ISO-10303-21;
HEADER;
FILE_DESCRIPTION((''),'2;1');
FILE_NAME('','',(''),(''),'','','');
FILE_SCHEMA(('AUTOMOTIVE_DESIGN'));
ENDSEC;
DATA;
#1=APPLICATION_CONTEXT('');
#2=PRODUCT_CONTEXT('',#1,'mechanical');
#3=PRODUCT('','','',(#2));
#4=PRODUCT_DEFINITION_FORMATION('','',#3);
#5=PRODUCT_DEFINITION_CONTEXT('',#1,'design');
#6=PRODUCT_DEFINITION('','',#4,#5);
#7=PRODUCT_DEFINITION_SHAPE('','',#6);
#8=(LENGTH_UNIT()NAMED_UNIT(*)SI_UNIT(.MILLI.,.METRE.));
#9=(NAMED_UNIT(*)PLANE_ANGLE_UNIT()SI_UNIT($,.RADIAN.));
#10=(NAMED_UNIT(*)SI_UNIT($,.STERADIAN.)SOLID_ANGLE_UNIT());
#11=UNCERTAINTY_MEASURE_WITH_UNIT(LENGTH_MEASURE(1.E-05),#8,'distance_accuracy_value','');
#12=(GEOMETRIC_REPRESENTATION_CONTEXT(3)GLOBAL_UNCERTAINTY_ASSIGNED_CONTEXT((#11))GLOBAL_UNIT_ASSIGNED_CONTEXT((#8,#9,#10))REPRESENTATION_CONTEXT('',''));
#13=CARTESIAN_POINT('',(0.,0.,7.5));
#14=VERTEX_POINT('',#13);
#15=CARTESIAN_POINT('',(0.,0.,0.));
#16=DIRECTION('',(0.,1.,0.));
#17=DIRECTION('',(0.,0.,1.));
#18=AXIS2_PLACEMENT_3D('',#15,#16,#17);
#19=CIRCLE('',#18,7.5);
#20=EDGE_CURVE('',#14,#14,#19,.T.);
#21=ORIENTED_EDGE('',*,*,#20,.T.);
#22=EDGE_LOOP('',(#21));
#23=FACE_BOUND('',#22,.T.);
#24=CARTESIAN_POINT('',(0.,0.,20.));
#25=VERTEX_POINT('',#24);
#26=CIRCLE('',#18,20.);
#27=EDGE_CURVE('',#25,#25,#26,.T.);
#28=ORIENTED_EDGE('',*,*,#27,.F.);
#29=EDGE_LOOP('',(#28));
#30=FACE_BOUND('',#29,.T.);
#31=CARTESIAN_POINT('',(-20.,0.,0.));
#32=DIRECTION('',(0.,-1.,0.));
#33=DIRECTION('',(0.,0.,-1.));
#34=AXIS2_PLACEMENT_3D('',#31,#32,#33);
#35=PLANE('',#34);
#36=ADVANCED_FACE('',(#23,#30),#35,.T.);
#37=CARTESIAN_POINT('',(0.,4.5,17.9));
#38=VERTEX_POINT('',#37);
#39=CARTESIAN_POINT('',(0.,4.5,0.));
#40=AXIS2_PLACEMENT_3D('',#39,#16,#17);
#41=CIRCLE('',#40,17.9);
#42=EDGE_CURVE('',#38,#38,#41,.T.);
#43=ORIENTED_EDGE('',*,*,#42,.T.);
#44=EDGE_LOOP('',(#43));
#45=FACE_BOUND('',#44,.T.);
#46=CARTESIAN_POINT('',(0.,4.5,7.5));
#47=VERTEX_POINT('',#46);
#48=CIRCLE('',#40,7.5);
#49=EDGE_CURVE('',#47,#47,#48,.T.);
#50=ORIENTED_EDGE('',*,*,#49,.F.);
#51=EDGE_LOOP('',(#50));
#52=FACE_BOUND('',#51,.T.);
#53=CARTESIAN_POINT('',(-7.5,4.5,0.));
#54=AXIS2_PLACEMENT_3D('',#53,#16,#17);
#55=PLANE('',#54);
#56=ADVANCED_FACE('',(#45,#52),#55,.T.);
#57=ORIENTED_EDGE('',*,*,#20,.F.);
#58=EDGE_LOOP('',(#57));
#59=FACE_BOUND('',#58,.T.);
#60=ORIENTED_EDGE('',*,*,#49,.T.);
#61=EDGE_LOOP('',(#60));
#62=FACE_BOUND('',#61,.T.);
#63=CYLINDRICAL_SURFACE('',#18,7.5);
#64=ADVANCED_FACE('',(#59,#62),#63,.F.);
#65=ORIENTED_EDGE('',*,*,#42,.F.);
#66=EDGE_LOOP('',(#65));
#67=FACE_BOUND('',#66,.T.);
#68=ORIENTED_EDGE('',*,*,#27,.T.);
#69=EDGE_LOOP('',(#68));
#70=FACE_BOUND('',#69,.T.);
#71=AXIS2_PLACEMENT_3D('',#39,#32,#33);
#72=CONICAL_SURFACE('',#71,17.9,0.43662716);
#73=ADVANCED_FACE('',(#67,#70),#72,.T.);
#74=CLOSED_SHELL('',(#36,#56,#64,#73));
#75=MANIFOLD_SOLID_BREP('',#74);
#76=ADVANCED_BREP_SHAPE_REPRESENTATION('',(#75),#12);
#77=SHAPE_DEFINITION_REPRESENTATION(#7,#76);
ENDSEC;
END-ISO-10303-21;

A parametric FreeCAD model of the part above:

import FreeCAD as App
import Part
import Sketcher

doc = App.newDocument("Part")
body = doc.addObject("PartDesign::Body", "Body")

# Sketch on XY plane
sketch1 = body.newObject("Sketcher::SketchObject", "Sketch")
sketch1.AttachmentSupport = (doc.getObject("XY_Plane"), [""])
sketch1.MapMode = "FlatFace"
sketch1.addGeometry([
    Part.LineSegment(App.Vector(-7.5, 0, 0), App.Vector(-7.5, 4.5, 0)),
    Part.LineSegment(App.Vector(-7.5, 4.5, 0), App.Vector(-17.9, 4.5, 0)),
    Part.LineSegment(App.Vector(-17.9, 4.5, 0), App.Vector(-20, 0, 0)),
    Part.LineSegment(App.Vector(-20, 0, 0), App.Vector(-7.5, 0, 0)),
], False)
sketch1.addConstraint([
    Sketcher.Constraint("Coincident", 0, 2, 1, 1),
    Sketcher.Constraint("Coincident", 1, 2, 2, 1),
    Sketcher.Constraint("Coincident", 2, 2, 3, 1),
    Sketcher.Constraint("Coincident", 3, 2, 0, 1),
    Sketcher.Constraint("Vertical", 0),
    Sketcher.Constraint("Horizontal", 1),
    Sketcher.Constraint("Horizontal", 3),
    Sketcher.Constraint("PointOnObject", 2, 2, -1),
    Sketcher.Constraint("DistanceX", 1, 2, 1, 1, 10.4),
    Sketcher.Constraint("DistanceX", 3, 1, 3, 2, 12.5),
    Sketcher.Constraint("DistanceY", 0, 1, 0, 2, 4.5),
    Sketcher.Constraint("DistanceX", 2, 2, -1, 1, 20.0),
])
revolution = body.newObject("PartDesign::Revolution", "Revolution")
revolution.Profile = sketch1
revolution.ReferenceAxis = (sketch1, ["V_Axis"])
revolution.Angle = 360

doc.recompute()
